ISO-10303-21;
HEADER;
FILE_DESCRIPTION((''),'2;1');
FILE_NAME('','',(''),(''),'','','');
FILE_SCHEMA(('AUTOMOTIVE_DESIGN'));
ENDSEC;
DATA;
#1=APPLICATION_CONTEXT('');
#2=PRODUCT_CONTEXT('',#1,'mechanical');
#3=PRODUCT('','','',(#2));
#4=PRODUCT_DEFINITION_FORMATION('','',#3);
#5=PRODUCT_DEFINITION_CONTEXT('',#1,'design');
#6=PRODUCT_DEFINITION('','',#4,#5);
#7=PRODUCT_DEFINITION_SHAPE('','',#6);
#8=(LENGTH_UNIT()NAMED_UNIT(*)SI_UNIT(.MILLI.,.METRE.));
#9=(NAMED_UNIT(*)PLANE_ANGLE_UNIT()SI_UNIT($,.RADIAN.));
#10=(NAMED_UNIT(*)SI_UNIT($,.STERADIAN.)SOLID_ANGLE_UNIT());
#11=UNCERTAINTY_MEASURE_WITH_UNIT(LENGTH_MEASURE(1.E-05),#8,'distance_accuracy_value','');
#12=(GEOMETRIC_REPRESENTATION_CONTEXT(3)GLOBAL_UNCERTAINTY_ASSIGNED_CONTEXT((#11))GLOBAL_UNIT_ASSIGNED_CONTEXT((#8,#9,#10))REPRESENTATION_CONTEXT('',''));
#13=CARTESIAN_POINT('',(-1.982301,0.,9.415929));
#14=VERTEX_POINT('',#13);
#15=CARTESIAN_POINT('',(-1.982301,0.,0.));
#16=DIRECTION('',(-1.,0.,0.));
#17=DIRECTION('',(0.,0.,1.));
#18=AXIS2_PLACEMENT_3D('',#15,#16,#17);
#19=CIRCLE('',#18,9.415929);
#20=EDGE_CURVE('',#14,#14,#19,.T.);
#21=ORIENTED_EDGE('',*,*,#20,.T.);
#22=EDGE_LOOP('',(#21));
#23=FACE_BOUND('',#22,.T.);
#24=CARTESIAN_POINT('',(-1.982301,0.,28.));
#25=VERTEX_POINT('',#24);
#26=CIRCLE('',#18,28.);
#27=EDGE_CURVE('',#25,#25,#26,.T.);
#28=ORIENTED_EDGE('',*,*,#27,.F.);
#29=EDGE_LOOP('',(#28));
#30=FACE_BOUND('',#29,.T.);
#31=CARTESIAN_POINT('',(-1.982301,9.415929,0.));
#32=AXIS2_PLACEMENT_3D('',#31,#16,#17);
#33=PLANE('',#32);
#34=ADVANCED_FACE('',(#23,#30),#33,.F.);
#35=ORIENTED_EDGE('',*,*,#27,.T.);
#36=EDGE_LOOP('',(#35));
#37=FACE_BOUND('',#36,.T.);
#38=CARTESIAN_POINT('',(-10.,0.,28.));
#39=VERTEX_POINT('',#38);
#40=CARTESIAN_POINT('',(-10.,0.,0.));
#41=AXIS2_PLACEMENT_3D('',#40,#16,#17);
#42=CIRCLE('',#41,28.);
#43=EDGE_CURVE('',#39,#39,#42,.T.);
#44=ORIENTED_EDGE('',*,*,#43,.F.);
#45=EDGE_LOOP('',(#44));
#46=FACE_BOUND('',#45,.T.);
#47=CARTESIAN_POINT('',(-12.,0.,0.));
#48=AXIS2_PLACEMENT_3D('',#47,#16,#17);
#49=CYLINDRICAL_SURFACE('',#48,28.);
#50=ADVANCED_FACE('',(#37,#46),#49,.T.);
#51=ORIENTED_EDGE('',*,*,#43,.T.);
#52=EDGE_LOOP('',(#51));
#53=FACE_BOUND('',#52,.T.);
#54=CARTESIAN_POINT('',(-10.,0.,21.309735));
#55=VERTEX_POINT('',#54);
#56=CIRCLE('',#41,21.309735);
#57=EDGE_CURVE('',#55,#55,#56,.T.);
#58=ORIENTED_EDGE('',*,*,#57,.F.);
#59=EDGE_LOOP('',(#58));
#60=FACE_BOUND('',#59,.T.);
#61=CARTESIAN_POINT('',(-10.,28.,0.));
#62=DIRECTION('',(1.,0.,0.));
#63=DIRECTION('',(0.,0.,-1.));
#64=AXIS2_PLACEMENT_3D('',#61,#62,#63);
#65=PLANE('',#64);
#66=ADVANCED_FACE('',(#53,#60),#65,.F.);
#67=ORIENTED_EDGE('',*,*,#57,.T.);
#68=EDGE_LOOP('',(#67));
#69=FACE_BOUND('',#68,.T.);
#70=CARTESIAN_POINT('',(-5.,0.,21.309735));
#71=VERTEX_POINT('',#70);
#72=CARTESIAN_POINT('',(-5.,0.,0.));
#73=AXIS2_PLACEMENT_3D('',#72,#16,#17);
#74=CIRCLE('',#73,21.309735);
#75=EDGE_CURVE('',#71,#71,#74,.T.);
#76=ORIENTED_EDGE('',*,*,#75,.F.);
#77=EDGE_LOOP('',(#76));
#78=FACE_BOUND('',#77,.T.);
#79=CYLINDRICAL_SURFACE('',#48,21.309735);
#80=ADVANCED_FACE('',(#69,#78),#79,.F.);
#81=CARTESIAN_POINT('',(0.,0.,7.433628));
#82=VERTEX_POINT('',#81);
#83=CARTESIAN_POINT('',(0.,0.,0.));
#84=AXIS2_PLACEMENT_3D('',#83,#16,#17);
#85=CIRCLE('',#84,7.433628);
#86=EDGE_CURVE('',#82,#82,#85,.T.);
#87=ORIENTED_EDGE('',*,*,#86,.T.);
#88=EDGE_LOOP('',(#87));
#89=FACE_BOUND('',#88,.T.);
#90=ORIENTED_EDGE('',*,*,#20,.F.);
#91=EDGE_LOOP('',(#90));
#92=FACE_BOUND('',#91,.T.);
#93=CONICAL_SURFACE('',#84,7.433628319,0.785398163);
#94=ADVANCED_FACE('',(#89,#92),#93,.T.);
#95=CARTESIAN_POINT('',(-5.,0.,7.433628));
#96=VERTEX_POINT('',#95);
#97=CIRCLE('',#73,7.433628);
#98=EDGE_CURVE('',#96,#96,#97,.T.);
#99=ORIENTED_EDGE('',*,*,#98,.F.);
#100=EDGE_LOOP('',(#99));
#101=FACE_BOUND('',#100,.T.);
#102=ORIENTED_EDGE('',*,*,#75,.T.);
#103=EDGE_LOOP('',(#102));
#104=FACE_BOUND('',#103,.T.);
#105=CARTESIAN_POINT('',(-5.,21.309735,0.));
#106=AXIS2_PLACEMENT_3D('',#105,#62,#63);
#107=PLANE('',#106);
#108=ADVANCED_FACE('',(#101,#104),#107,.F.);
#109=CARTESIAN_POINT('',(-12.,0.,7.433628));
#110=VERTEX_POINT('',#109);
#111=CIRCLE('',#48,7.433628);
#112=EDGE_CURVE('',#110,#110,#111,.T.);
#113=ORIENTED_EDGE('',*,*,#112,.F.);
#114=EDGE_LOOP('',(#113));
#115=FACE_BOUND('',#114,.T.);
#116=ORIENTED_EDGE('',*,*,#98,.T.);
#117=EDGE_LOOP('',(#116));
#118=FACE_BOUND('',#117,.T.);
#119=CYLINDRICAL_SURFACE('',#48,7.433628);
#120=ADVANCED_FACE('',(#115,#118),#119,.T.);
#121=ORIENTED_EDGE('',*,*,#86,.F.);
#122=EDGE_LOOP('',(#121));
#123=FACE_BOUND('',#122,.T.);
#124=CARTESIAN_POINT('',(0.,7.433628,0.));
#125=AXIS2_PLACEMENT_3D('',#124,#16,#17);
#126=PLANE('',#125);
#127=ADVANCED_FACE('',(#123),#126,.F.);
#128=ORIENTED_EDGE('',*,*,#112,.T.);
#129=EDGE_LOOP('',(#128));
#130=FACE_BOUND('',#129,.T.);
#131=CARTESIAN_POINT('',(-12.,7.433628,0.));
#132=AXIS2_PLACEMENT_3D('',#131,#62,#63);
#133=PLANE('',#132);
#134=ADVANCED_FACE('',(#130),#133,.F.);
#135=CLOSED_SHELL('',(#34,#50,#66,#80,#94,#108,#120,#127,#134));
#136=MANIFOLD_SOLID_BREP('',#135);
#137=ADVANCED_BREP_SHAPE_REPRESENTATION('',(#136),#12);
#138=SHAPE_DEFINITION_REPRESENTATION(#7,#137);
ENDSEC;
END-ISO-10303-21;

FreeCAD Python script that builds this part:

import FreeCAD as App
import Part
import Sketcher
from FreeCAD import Vector
Q = App.Units.Quantity

doc = App.newDocument("Part")
body = doc.addObject("PartDesign::Body", "Body")

sketch1 = doc.addObject("Sketcher::SketchObject", "Sketch")
body.addObject(sketch1)
sketch1.AttachmentSupport = (doc.XY_Plane, [""])
sketch1.MapMode = "FlatFace"
sketch1.addGeometry([
    Part.LineSegment(Vector(-1.982301, 9.415929, 0), Vector(-1.982301, 28, 0)),
    Part.LineSegment(Vector(-1.982301, 28, 0), Vector(-10, 28, 0)),
    Part.LineSegment(Vector(-10, 28, 0), Vector(-10, 21.309735, 0)),
    Part.LineSegment(Vector(-10, 21.309735, 0), Vector(-5, 21.309735, 0)),
    Part.LineSegment(Vector(-5, 21.309735, 0), Vector(-5, 7.433628, 0)),
    Part.LineSegment(Vector(-5, 7.433628, 0), Vector(-12, 7.433628, 0)),
    Part.LineSegment(Vector(-12, 7.433628, 0), Vector(-12, 0, 0)),
    Part.LineSegment(Vector(-12, 0, 0), Vector(0, 0, 0)),
    Part.LineSegment(Vector(0, 0, 0), Vector(0, 7.433628, 0)),
    Part.LineSegment(Vector(0, 7.433628, 0), Vector(-1.982301, 9.415929, 0)),
], False)
sketch1.addConstraint([
    Sketcher.Constraint("Coincident", 0, 2, 1, 1),
    Sketcher.Constraint("Coincident", 1, 2, 2, 1),
    Sketcher.Constraint("Coincident", 2, 2, 3, 1),
    Sketcher.Constraint("Coincident", 3, 2, 4, 1),
    Sketcher.Constraint("Coincident", 4, 2, 5, 1),
    Sketcher.Constraint("Coincident", 5, 2, 6, 1),
    Sketcher.Constraint("Coincident", 6, 2, 7, 1),
    Sketcher.Constraint("Coincident", 7, 2, 8, 1),
    Sketcher.Constraint("Coincident", 8, 2, 9, 1),
    Sketcher.Constraint("Coincident", 9, 2, 0, 1),
    Sketcher.Constraint("Vertical", 0),
    Sketcher.Constraint("Horizontal", 1),
    Sketcher.Constraint("Vertical", 2),
    Sketcher.Constraint("Horizontal", 3),
    Sketcher.Constraint("Vertical", 4),
    Sketcher.Constraint("Horizontal", 5),
    Sketcher.Constraint("Vertical", 6),
    Sketcher.Constraint("Horizontal", 7),
    Sketcher.Constraint("Vertical", 8),
    Sketcher.Constraint("Coincident", 7, 2, -1, 1),
    Sketcher.Constraint("Horizontal", 5, 2, 8, 2),
    Sketcher.Constraint("DistanceX", 3, 1, 3, 2, 5.0),
    Sketcher.Constraint("DistanceX", 5, 2, 5, 1, 7.0),
    Sketcher.Constraint("DistanceX", 7, 1, 7, 2, 12.0),
    Sketcher.Constraint("Angle", 9, Q("135 deg")),
    Sketcher.Constraint("DistanceY", -1, 1, 0, 2, 28.0),
    Sketcher.Constraint("DistanceX", 1, 2, 1, 1, 8.017699),
    Sketcher.Constraint("DistanceY", 0, 1, 0, 2, 18.584071),
    Sketcher.Constraint("DistanceY", 2, 2, 2, 1, 6.690265),
])
revolution = doc.addObject("PartDesign::Revolution", "Revolution")
body.addObject(revolution)
revolution.Profile = sketch1
revolution.ReferenceAxis = (sketch1, ["H_Axis"])
revolution.Angle = 360

doc.recompute()
